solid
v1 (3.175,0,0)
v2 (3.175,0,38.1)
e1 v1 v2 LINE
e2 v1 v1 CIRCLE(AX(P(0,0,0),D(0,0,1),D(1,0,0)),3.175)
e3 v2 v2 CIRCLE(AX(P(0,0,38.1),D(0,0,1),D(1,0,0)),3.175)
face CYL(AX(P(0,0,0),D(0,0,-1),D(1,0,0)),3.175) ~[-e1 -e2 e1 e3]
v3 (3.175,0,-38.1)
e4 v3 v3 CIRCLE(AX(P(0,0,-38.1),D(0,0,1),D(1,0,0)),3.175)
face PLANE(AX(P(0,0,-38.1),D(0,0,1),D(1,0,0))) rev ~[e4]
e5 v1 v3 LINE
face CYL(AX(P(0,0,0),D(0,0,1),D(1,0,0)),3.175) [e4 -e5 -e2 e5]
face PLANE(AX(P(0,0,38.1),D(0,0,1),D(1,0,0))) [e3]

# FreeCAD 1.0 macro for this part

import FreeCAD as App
import Part
import Sketcher
Q = App.Units.Quantity

doc = App.newDocument("Part")
params = doc.addObject("Spreadsheet::Sheet", "Params")
for row, (alias, value) in enumerate([
    ("sketch1_diameter", "0.25 in"),
    ("pad1_length", "3 in"),
], start=1):
    params.set(f"A{row}", alias)
    params.set(f"B{row}", "=" + value)
    params.setAlias(f"B{row}", alias)

body = doc.addObject("PartDesign::Body", "Body")

sketch1 = doc.addObject("Sketcher::SketchObject", "Sketch")
body.addObject(sketch1)
sketch1.AttachmentSupport = (doc.XY_Plane, [""])
sketch1.MapMode = "FlatFace"
sketch1.addGeometry(Part.Circle(App.Vector(0, 0, 0), App.Vector(0, 0, 1), 3.2), False)
sketch1.addConstraint(Sketcher.Constraint("Coincident", 0, 3, -1, 1))
sketch1.addConstraint(Sketcher.Constraint("Diameter", 0, Q("0.25 in")))
sketch1.setExpression("Constraints[1]", "Params.sketch1_diameter")
pad1 = doc.addObject("PartDesign::Pad", "Pad")
body.addObject(pad1)
pad1.Profile = sketch1
pad1.setExpression("Length", "Params.pad1_length")
pad1.Midplane = True

doc.recompute()
